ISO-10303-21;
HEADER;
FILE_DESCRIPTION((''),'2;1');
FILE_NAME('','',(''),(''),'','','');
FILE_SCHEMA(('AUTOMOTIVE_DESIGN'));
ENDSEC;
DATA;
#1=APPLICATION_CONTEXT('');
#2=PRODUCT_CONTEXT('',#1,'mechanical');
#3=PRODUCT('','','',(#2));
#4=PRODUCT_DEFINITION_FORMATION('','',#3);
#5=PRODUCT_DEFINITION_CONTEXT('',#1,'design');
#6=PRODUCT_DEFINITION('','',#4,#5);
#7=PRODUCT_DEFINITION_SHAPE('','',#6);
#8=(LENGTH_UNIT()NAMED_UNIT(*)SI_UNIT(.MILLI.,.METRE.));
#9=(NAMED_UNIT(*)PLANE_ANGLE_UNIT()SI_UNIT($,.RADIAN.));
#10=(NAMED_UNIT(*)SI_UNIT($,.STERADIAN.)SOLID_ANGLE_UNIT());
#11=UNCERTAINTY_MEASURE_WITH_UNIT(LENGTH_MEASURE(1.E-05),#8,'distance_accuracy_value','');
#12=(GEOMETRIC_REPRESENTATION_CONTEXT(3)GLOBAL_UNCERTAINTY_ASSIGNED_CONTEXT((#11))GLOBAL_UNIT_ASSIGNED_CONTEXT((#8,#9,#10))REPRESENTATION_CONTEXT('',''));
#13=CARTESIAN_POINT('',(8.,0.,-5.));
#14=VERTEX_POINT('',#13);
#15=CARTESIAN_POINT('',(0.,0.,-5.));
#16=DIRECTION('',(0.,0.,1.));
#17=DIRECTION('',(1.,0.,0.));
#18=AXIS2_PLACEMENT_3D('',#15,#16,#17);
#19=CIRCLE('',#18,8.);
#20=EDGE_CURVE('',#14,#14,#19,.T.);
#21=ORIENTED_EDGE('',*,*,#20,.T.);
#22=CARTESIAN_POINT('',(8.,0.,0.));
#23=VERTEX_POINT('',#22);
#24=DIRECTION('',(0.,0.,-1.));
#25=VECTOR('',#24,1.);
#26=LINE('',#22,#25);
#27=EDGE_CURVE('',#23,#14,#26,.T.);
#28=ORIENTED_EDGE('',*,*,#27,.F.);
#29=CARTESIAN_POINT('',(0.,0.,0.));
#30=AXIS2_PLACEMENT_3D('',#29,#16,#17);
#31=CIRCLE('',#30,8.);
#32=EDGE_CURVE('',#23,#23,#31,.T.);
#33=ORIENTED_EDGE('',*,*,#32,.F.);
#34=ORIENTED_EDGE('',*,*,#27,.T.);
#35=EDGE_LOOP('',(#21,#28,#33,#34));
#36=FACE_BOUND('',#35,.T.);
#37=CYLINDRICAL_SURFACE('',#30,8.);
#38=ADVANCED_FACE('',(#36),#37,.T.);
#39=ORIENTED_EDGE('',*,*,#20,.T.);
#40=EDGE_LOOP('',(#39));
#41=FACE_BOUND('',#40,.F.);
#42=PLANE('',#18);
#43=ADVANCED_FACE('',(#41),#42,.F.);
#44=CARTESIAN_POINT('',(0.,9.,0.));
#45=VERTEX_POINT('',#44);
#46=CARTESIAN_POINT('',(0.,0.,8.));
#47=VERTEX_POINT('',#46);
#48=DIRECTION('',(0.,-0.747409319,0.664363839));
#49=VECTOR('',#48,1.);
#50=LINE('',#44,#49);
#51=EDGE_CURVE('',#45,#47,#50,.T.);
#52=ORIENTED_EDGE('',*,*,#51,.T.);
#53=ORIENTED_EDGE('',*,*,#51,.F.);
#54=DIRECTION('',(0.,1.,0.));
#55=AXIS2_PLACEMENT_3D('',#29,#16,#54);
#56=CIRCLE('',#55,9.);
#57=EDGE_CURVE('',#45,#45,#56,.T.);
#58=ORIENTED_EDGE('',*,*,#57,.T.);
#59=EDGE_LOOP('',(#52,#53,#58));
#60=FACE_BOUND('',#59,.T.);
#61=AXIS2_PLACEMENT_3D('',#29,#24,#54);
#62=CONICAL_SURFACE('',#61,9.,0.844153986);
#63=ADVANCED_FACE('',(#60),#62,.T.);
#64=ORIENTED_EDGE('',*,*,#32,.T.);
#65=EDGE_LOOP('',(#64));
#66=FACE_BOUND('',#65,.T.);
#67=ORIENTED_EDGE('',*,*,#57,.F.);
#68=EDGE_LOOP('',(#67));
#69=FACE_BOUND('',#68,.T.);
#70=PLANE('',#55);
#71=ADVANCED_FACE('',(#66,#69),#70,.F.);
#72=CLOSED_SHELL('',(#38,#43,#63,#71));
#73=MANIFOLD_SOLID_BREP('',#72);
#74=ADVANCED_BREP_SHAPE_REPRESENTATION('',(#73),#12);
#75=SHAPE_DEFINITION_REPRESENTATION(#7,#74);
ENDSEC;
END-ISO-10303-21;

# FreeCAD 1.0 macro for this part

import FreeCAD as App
import Part
import Sketcher
Q = App.Units.Quantity


def add_polygon(sketch, points):
    """Adds a closed chain of lines whose ends are joined by coincident constraints."""
    first, n = sketch.GeometryCount, len(points)
    for a, b in zip(points, points[1:] + points[:1]):
        sketch.addGeometry(Part.LineSegment(App.Vector(*a, 0), App.Vector(*b, 0)), False)
    for i in range(n):
        sketch.addConstraint(Sketcher.Constraint("Coincident", first + i, 2, first + (i + 1) % n, 1))

doc = App.newDocument("Part")
params = doc.addObject("Spreadsheet::Sheet", "Params")
for row, (alias, value) in enumerate([
    ("sketch1_diameter", "16 mm"),
    ("pad1_length", "5 mm"),
    ("sketch2_width", "9 mm"),
    ("sketch2_height", "8 mm"),
    ("revolution_angle", "360 deg"),
], start=1):
    params.set(f"A{row}", alias)
    params.set(f"B{row}", "=" + value)
    params.setAlias(f"B{row}", alias)

body = doc.addObject("PartDesign::Body", "Body")

sketch1 = body.newObject("Sketcher::SketchObject", "Sketch")
sketch1.AttachmentSupport = (doc.getObject("XY_Plane"), [""])
sketch1.MapMode = "FlatFace"
sketch1.addGeometry(Part.Circle(App.Vector(0, 0, 0), App.Vector(0, 0, 1), 8), False)
sketch1.addConstraint(Sketcher.Constraint("Coincident", 0, 3, -1, 1))
sketch1.addConstraint(Sketcher.Constraint("Diameter", 0, Q("16 mm")))
sketch1.setExpression("Constraints[1]", "Params.sketch1_diameter")
pad1 = body.newObject("PartDesign::Pad", "Pad")
pad1.Profile = sketch1
pad1.setExpression("Length", "Params.pad1_length")
pad1.Reversed = True

sketch2 = body.newObject("Sketcher::SketchObject", "Sketch001")
sketch2.AttachmentSupport = (doc.getObject("YZ_Plane"), [""])
sketch2.MapMode = "FlatFace"
add_polygon(sketch2, [(0, 8), (0, 0), (9, 0)])
sketch2.addConstraint(Sketcher.Constraint("Vertical", 0))
sketch2.addConstraint(Sketcher.Constraint("Horizontal", 1))
sketch2.addConstraint(Sketcher.Constraint("Coincident", 0, 2, -1, 1))
sketch2.addConstraint(Sketcher.Constraint("DistanceX", 1, 1, 1, 2, Q("9 mm")))
sketch2.addConstraint(Sketcher.Constraint("DistanceY", 0, 2, 0, 1, Q("8 mm")))
sketch2.setExpression("Constraints[6]", "Params.sketch2_width")
sketch2.setExpression("Constraints[7]", "Params.sketch2_height")
revolution = body.newObject("PartDesign::Revolution", "Revolution")
revolution.Profile = sketch2
revolution.ReferenceAxis = (sketch2, ["V_Axis"])
revolution.setExpression("Angle", "Params.revolution_angle")

doc.recompute()
